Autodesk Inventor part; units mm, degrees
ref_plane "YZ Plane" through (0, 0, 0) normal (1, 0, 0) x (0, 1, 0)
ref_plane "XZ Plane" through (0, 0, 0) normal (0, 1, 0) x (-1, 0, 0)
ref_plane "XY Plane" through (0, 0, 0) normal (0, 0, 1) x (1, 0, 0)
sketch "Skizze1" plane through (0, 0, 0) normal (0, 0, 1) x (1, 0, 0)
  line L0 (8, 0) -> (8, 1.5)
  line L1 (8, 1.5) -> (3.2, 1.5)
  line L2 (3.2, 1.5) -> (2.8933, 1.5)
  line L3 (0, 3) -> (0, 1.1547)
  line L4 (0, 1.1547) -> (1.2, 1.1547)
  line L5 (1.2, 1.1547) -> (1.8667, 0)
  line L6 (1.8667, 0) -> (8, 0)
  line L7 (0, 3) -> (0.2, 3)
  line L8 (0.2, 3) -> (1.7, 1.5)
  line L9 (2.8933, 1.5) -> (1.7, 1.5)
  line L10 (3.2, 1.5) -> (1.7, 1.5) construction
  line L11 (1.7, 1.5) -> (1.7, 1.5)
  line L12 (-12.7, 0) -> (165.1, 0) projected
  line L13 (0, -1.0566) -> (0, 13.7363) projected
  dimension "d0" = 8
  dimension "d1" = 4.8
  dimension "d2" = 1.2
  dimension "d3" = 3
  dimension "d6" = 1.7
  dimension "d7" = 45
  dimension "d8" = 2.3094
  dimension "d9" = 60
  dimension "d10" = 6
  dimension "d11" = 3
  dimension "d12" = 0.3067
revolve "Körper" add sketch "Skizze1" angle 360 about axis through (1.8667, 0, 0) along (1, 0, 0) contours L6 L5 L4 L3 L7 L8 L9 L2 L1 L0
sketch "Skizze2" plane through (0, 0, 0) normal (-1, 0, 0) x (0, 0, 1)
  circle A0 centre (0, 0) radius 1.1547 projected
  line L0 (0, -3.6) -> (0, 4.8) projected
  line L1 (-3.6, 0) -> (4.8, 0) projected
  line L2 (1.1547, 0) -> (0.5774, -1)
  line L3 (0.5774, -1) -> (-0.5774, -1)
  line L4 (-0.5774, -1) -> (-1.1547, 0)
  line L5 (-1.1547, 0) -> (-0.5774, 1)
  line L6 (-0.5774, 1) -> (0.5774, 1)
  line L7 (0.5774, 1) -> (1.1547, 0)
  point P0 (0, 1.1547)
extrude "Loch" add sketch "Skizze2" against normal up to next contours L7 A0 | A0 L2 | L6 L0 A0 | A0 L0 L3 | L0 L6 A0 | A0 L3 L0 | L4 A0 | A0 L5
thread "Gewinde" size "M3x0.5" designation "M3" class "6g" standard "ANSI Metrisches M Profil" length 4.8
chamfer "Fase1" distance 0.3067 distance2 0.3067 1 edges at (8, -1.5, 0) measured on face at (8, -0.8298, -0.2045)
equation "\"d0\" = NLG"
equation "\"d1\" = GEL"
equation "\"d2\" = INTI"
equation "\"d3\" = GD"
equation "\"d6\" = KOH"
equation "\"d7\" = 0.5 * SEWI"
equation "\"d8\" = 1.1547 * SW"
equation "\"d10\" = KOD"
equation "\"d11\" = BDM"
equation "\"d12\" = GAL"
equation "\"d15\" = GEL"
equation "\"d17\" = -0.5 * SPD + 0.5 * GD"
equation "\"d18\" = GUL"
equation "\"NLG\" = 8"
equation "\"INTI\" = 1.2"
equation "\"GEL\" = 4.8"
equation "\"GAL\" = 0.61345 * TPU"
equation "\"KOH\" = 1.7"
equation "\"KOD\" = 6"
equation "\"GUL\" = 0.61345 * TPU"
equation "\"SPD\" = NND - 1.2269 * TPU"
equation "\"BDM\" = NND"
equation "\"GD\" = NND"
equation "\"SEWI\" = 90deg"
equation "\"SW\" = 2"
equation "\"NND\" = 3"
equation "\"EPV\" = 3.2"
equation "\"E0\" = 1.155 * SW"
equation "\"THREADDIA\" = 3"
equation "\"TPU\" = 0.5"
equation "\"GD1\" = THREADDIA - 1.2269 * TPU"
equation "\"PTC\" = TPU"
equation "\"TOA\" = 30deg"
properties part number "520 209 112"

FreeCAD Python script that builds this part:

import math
import FreeCAD as App
import Part
import Sketcher
from FreeCAD import Vector
Q = App.Units.Quantity


def edges_at(feature, points):
    """Names of the edges that pass closest to the given points."""
    edges = feature.Shape.Edges
    near = lambda p: min(range(len(edges)), key=lambda i: edges[i].distToShape(Part.Vertex(*p))[0])
    return sorted({f"Edge{near(p) + 1}" for p in points})

doc = App.newDocument("Part")
body = doc.addObject("PartDesign::Body", "Body")

# Sketch on XY plane
sketch1 = body.newObject("Sketcher::SketchObject", "Sketch")
sketch1.AttachmentSupport = (doc.getObject("XY_Plane"), [""])
sketch1.MapMode = "FlatFace"
sketch1.addGeometry([
    Part.LineSegment(Vector(1.8667, 0, 0), Vector(8, 0, 0)),  # 0
    Part.LineSegment(Vector(8, 0, 0), Vector(8, 1.5, 0)),  # 1
    Part.LineSegment(Vector(8, 1.5, 0), Vector(1.7, 1.5, 0)),  # 2
    Part.LineSegment(Vector(1.7, 1.5, 0), Vector(0.2, 3, 0)),  # 3
    Part.LineSegment(Vector(0.2, 3, 0), Vector(0, 3, 0)),  # 4
    Part.LineSegment(Vector(0, 3, 0), Vector(0, 1.1547, 0)),  # 5
    Part.LineSegment(Vector(0, 1.1547, 0), Vector(1.2, 1.1547, 0)),  # 6
    Part.LineSegment(Vector(1.2, 1.1547, 0), Vector(1.8667, 0, 0)),  # 7
], False)
sketch1.addConstraint([
    Sketcher.Constraint("Coincident", 0, 2, 1, 1),
    Sketcher.Constraint("Coincident", 1, 2, 2, 1),
    Sketcher.Constraint("Coincident", 2, 2, 3, 1),
    Sketcher.Constraint("Coincident", 3, 2, 4, 1),
    Sketcher.Constraint("Coincident", 4, 2, 5, 1),
    Sketcher.Constraint("Coincident", 5, 2, 6, 1),
    Sketcher.Constraint("Coincident", 6, 2, 7, 1),
    Sketcher.Constraint("Coincident", 7, 2, 0, 1),
    Sketcher.Constraint("Horizontal", 0),
    Sketcher.Constraint("Vertical", 1),
    Sketcher.Constraint("Horizontal", 2),
    Sketcher.Constraint("Horizontal", 4),
    Sketcher.Constraint("Vertical", 5),
    Sketcher.Constraint("Horizontal", 6),
    Sketcher.Constraint("PointOnObject", 0, 2, -1),
    Sketcher.Constraint("PointOnObject", 4, 2, -2),
    Sketcher.Constraint("DistanceX", 6, 1, 6, 2, 1.2),
    Sketcher.Constraint("DistanceX", -1, 1, 0, 2, 8.0),
    Sketcher.Constraint("DistanceY", -1, 1, 3, 2, 3.0),
    Sketcher.Constraint("DistanceX", -1, 1, 2, 2, 1.7),
    Sketcher.Constraint("Angle", 3, Q("135 deg")),
    Sketcher.Constraint("DistanceX", 4, 2, 4, 1, 0.2),
    Sketcher.Constraint("DistanceX", 0, 1, 0, 2, 6.1333),
    Sketcher.Constraint("DistanceY", 5, 2, 5, 1, 1.8453),
])
revolution = body.newObject("PartDesign::Revolution", "Revolution")
revolution.Profile = sketch1
revolution.ReferenceAxis = (sketch1, ["H_Axis"])
revolution.Angle = 360

# Sketch on YZ plane
sketch2 = body.newObject("Sketcher::SketchObject", "Sketch001")
sketch2.AttachmentSupport = (doc.getObject("YZ_Plane"), [""])
sketch2.MapMode = "FlatFace"
sketch2.addGeometry([
    Part.LineSegment(Vector(1, 0.5774, 0), Vector(0, 1.1547, 0)),  # 0
    Part.ArcOfCircle(Part.Circle(Vector(0, 0, 0), Vector(0, 0, 1), 1.1547), math.radians(30.002137), math.radians(90)),  # 1
    Part.ArcOfCircle(Part.Circle(Vector(0, 0, 0), Vector(0, 0, 1), 1.1547), math.radians(90), math.radians(149.997863)),  # 2
    Part.LineSegment(Vector(0, 1.1547, 0), Vector(-1, 0.5774, 0)),  # 3
    Part.ArcOfCircle(Part.Circle(Vector(0, 0, 0), Vector(0, 0, 1), 1.1547), math.radians(-30.002137), math.radians(30.002137)),  # 4
    Part.LineSegment(Vector(1, 0.5774, 0), Vector(1, -0.5774, 0)),  # 5
    Part.LineSegment(Vector(-1, 0.5774, 0), Vector(-1, -0.5774, 0)),  # 6
    Part.ArcOfCircle(Part.Circle(Vector(0, 0, 0), Vector(0, 0, 1), 1.1547), math.radians(149.997863), math.radians(210.002137)),  # 7
    Part.LineSegment(Vector(-1, -0.5774, 0), Vector(0, -1.1547, 0)),  # 8
    Part.ArcOfCircle(Part.Circle(Vector(0, 0, 0), Vector(0, 0, 1), 1.1547), math.radians(-149.997863), math.radians(-90)),  # 9
    Part.ArcOfCircle(Part.Circle(Vector(0, 0, 0), Vector(0, 0, 1), 1.1547), math.radians(-90), math.radians(-30.002137)),  # 10
    Part.LineSegment(Vector(0, -1.1547, 0), Vector(1, -0.5774, 0)),  # 11
], False)
sketch2.addConstraint([
    Sketcher.Constraint("Coincident", 0, 1, 1, 1),
    Sketcher.Constraint("Coincident", 1, 2, 0, 2),
    Sketcher.Constraint("Coincident", 2, 1, 3, 1),
    Sketcher.Constraint("Coincident", 3, 2, 2, 2),
    Sketcher.Constraint("Coincident", 4, 1, 5, 2),
    Sketcher.Constraint("Coincident", 5, 1, 4, 2),
    Sketcher.Constraint("Coincident", 6, 1, 7, 1),
    Sketcher.Constraint("Coincident", 7, 2, 6, 2),
    Sketcher.Constraint("Coincident", 8, 1, 9, 1),
    Sketcher.Constraint("Coincident", 9, 2, 8, 2),
    Sketcher.Constraint("Coincident", 10, 1, 11, 1),
    Sketcher.Constraint("Coincident", 11, 2, 10, 2),
    Sketcher.Constraint("Vertical", 5),
    Sketcher.Constraint("Vertical", 6),
    Sketcher.Constraint("Coincident", 1, 3, -1, 1),
    Sketcher.Constraint("Coincident", 2, 3, -1, 1),
    Sketcher.Constraint("Coincident", 4, 3, -1, 1),
    Sketcher.Constraint("Coincident", 7, 3, -1, 1),
    Sketcher.Constraint("Coincident", 9, 3, -1, 1),
    Sketcher.Constraint("Coincident", 10, 3, -1, 1),
    Sketcher.Constraint("Coincident", 2, 1, 1, 2),
    Sketcher.Constraint("Coincident", 5, 1, 0, 1),
    Sketcher.Constraint("Coincident", 6, 1, 3, 2),
    Sketcher.Constraint("Coincident", 8, 1, 7, 2),
    Sketcher.Constraint("Coincident", 10, 1, 9, 2),
    Sketcher.Constraint("PointOnObject", 1, 2, -2),
    Sketcher.Constraint("PointOnObject", 9, 2, -2),
    Sketcher.Constraint("Parallel", 0, 8),
    Sketcher.Constraint("Parallel", 3, 11),
    Sketcher.Constraint("DistanceX", -1, 1, 0, 1, 1.0),
    Sketcher.Constraint("Radius", 1, 1.1547),
])
pad1 = body.newObject("PartDesign::Pad", "Pad")
pad1.Profile = sketch2
pad1.Type = "UpToFirst"
doc.recompute()

chamfer = body.newObject("PartDesign::Chamfer", "Chamfer")
chamfer.Base = (pad1, edges_at(pad1, [(8, -1.5, 0)]))
chamfer.ChamferType = "Two distances"
chamfer.Size = 0.3067
chamfer.Size2 = 0.3067

doc.recompute()
